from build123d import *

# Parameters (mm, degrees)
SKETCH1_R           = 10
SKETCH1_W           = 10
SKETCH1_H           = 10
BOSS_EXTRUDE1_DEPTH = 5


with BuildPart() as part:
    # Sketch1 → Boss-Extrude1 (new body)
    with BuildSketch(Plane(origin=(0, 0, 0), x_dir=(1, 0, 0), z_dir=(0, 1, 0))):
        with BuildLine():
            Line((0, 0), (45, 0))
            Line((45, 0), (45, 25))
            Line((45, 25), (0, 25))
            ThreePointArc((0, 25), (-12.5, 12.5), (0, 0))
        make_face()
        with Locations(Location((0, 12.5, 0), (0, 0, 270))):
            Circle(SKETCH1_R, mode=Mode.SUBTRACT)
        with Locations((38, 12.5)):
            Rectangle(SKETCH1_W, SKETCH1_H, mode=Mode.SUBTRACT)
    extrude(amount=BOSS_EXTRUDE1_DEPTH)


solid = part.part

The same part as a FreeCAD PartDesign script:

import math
import FreeCAD as App
import Part
import Sketcher

V = App.Vector


def add_polygon(sketch, points):
    """Adds a closed chain of lines whose ends are joined by coincident constraints."""
    first, n = sketch.GeometryCount, len(points)
    for a, b in zip(points, points[1:] + points[:1]):
        sketch.addGeometry(Part.LineSegment(App.Vector(*a, 0), App.Vector(*b, 0)), False)
    for i in range(n):
        sketch.addConstraint(Sketcher.Constraint("Coincident", first + i, 2, first + (i + 1) % n, 1))

doc = App.newDocument("Part")
body = doc.addObject("PartDesign::Body", "Body")

# Sketch on XZ plane
sketch1 = doc.addObject("Sketcher::SketchObject", "Sketch")
body.addObject(sketch1)
sketch1.AttachmentSupport = (doc.XZ_Plane, [""])
sketch1.MapMode = "FlatFace"
sketch1.addGeometry(Part.LineSegment(V(0, 0, 0), V(45, 0, 0)), False)  # 0
sketch1.addGeometry(Part.LineSegment(V(45, 0, 0), V(45, -25, 0)), False)  # 1
sketch1.addGeometry(Part.LineSegment(V(45, -25, 0), V(0, -25, 0)), False)  # 2
sketch1.addGeometry(Part.ArcOfCircle(Part.Circle(V(0, -12, 0), V(0, 0, 1), 12), math.radians(90), math.radians(270)), False)  # 3
sketch1.addGeometry(Part.Circle(V(0, -12, 0), V(0, 0, 1), 10), False)  # 4
add_polygon(sketch1, [(43, -8), (33, -8), (33, -18), (43, -18)])  # lines 5-8
sketch1.addConstraint([
    Sketcher.Constraint("Coincident", 0, 2, 1, 1),
    Sketcher.Constraint("Coincident", 1, 2, 2, 1),
    Sketcher.Constraint("Tangent", 2, 2, 3, 2),
    Sketcher.Constraint("Tangent", 3, 1, 0, 1),
    Sketcher.Constraint("Horizontal", 0),
    Sketcher.Constraint("Vertical", 1),
    Sketcher.Constraint("Horizontal", 2),
    Sketcher.Constraint("Horizontal", 5),
    Sketcher.Constraint("Vertical", 6),
    Sketcher.Constraint("Horizontal", 7),
    Sketcher.Constraint("Vertical", 8),
    Sketcher.Constraint("Coincident", 3, 1, -1, 1),
    Sketcher.Constraint("Coincident", 4, 3, 3, 3),
    Sketcher.Constraint("Equal", 7, 6),
    Sketcher.Constraint("Diameter", 4, 20.0),
    Sketcher.Constraint("Radius", 3, 12.5),
    Sketcher.Constraint("DistanceX", 0, 1, 0, 2, 45.0),
    Sketcher.Constraint("DistanceX", 5, 2, 5, 1, 10.0),
    Sketcher.Constraint("DistanceX", -1, 1, 5, 2, 33.0),
    Sketcher.Constraint("DistanceY", 3, 3, 5, 2, 5.0),
])
pad1 = doc.addObject("PartDesign::Pad", "Pad")
body.addObject(pad1)
pad1.Profile = sketch1
pad1.Length = 5
pad1.Reversed = True

doc.recompute()
